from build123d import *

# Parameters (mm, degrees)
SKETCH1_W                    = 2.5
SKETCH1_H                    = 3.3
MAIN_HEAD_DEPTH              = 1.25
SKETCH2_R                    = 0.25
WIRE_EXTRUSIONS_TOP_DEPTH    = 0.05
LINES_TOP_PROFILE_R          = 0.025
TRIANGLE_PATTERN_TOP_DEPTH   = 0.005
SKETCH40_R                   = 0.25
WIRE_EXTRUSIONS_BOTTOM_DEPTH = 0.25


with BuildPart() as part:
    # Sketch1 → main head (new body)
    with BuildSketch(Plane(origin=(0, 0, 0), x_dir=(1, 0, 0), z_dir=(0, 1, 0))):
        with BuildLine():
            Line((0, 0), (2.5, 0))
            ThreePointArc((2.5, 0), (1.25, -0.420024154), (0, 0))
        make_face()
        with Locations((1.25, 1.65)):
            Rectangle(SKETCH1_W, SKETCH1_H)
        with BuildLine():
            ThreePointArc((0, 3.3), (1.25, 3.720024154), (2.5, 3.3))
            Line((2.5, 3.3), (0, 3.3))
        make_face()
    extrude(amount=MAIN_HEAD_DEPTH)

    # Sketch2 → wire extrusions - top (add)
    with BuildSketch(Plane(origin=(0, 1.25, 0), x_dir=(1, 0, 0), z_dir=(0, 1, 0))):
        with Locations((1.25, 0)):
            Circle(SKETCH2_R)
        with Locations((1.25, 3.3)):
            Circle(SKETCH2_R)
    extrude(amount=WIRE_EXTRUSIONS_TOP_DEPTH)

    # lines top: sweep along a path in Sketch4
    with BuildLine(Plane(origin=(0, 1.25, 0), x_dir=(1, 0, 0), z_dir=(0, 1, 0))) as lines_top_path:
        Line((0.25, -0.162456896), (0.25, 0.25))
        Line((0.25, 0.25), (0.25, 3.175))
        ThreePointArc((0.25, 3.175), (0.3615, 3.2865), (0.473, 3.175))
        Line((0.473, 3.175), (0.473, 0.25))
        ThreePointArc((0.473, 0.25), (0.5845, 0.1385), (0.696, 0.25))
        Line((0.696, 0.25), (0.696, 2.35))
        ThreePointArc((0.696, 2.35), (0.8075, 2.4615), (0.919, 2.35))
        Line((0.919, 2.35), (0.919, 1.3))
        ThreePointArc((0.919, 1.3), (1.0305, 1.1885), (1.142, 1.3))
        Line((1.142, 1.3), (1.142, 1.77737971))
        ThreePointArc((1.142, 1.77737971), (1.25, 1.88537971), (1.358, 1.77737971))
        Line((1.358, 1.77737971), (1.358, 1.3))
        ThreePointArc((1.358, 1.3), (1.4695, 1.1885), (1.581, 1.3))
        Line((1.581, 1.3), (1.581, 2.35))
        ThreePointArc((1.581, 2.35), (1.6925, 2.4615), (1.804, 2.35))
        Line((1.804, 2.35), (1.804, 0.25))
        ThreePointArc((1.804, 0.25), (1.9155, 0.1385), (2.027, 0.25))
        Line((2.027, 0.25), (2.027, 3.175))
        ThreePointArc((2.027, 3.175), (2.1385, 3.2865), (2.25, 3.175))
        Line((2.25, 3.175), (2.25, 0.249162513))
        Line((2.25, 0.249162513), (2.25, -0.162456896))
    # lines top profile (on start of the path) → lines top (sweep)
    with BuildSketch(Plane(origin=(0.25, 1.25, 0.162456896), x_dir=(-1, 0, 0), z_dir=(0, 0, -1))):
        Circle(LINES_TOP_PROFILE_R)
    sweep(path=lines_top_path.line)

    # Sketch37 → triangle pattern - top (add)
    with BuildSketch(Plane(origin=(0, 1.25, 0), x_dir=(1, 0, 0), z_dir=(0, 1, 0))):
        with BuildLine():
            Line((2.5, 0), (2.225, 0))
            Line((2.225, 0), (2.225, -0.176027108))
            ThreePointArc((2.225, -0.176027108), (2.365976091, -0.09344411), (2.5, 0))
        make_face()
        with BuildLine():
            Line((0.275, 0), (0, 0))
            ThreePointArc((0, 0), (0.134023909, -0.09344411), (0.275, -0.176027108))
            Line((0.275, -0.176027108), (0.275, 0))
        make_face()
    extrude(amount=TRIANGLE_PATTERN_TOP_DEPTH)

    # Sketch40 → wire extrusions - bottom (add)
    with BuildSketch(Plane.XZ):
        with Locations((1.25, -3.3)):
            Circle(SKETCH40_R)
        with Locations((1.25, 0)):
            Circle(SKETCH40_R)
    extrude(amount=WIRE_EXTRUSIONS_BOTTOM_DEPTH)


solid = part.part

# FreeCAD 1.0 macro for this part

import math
import FreeCAD as App
import Part
import Sketcher

V = App.Vector
Q = App.Units.Quantity

doc = App.newDocument("Part")
params = doc.addObject("Spreadsheet::Sheet", "Params")
for row, (alias, value) in enumerate([
    ("sketch1_height", "3.3 mm"),
    ("pad1_length", "1.25 mm"),
    ("sketch2_diameter", "0.5 mm"),
    ("pad2_length", "0.05 mm"),
    ("sketch3_diameter", "0.05 mm"),
    ("sketch4_height", "2.1 mm"),
    ("sketch4_height2", "1.05 mm"),
    ("pad3_length", "0.005 mm"),
    ("sketch6_diameter", "0.5 mm"),
    ("pad4_length", "0.25 mm"),
], start=1):
    params.set(f"A{row}", alias)
    params.set(f"B{row}", "=" + value)
    params.setAlias(f"B{row}", alias)

body = doc.addObject("PartDesign::Body", "Body")

# Sketch on XZ plane
sketch1 = body.newObject("Sketcher::SketchObject", "Sketch")
sketch1.AttachmentSupport = (doc.getObject("XZ_Plane"), [""])
sketch1.MapMode = "FlatFace"
sketch1.addGeometry([
    Part.ArcOfCircle(Part.Circle(V(1.2, -1.7, 0), V(0, 0, 1), 2.1), math.radians(53), math.radians(127)),
    Part.LineSegment(V(2.5, 0, 0), V(2.5, -3.3, 0)),
    Part.ArcOfCircle(Part.Circle(V(1.2, -1.6, 0), V(0, 0, 1), 2.1), math.radians(-127), math.radians(-53)),
    Part.LineSegment(V(0, -3.3, 0), V(0, 0, 0)),
], False)
sketch1.addConstraint([
    Sketcher.Constraint("Coincident", 0, 1, 1, 1),
    Sketcher.Constraint("Coincident", 1, 2, 2, 2),
    Sketcher.Constraint("Coincident", 2, 1, 3, 1),
    Sketcher.Constraint("Coincident", 3, 2, 0, 2),
    Sketcher.Constraint("Vertical", 1),
    Sketcher.Constraint("Vertical", 3),
    Sketcher.Constraint("Coincident", 3, 2, -1, 1),
    Sketcher.Constraint("Coincident", 2, 3, 0, 3),
    Sketcher.Constraint("Equal", 0, 2),
    Sketcher.Constraint("PointOnObject", 0, 1, -1),
    Sketcher.Constraint("DistanceY", 1, 2, 1, 1, Q("3.3 mm")),
    Sketcher.Constraint("DistanceX", -1, 1, 0, 1, Q("2.5 mm")),
])
sketch1.setExpression("Constraints[10]", "Params.sketch1_height")
pad1 = body.newObject("PartDesign::Pad", "Pad")
pad1.Profile = sketch1
pad1.setExpression("Length", "Params.pad1_length")
pad1.Reversed = True

# Sketch on XZ plane
sketch2 = body.newObject("Sketcher::SketchObject", "Sketch001")
sketch2.AttachmentSupport = (doc.getObject("XZ_Plane"), [""])
sketch2.MapMode = "FlatFace"
sketch2.AttachmentOffset = App.Placement(V(0, 0, -1.25), App.Rotation())
sketch2.addGeometry([
    Part.Circle(V(1.25, 0, 0), V(0, 0, 1), 0.25),
    Part.Circle(V(1.25, -3.3, 0), V(0, 0, 1), 0.25),
], False)
sketch2.addConstraint([
    Sketcher.Constraint("Equal", 0, 1),
    Sketcher.Constraint("PointOnObject", 0, 3, -1),
    Sketcher.Constraint("Vertical", 0, 3, 1, 3),
    Sketcher.Constraint("Diameter", 0, Q("0.5 mm")),
    Sketcher.Constraint("DistanceY", 1, 3, -1, 1, Q("3.3 mm")),
    Sketcher.Constraint("DistanceX", -1, 1, 0, 3, Q("1.25 mm")),
])
sketch2.setExpression("Constraints[3]", "Params.sketch2_diameter")
pad2 = body.newObject("PartDesign::Pad", "Pad001")
pad2.Profile = sketch2
pad2.setExpression("Length", "Params.pad2_length")
pad2.Reversed = True

# Sketch on XY plane
sketch3 = body.newObject("Sketcher::SketchObject", "Sketch002")
sketch3.AttachmentSupport = (doc.getObject("XY_Plane"), [""])
sketch3.MapMode = "FlatFace"
sketch3.AttachmentOffset = App.Placement(V(0, 0, 0.162457), App.Rotation())
sketch3.addGeometry(Part.Circle(V(0.25, 1.25, 0), V(0, 0, 1), 0.025), False)
sketch3.addConstraint([
    Sketcher.Constraint("Diameter", 0, Q("0.05 mm")),
    Sketcher.Constraint("DistanceX", -1, 1, 0, 3, Q("0.25 mm")),
    Sketcher.Constraint("DistanceY", -1, 1, 0, 3, Q("1.25 mm")),
])
sketch3.setExpression("Constraints[0]", "Params.sketch3_diameter")

# Sketch on XZ plane
sketch4 = body.newObject("Sketcher::SketchObject", "Sketch003")
sketch4.AttachmentSupport = (doc.getObject("XZ_Plane"), [""])
sketch4.MapMode = "FlatFace"
sketch4.AttachmentOffset = App.Placement(V(0, 0, -1.25), App.Rotation())
sketch4.addGeometry([
    Part.LineSegment(V(0.25, 0.16, 0), V(0.25, -3.17, 0)),  # 0
    Part.ArcOfCircle(Part.Circle(V(0.36, -3.17, 0), V(0, 0, 1), 0.11), math.radians(180), math.radians(360)),  # 1
    Part.LineSegment(V(0.47, -3.17, 0), V(0.47, -0.25, 0)),  # 2
    Part.ArcOfCircle(Part.Circle(V(0.58, -0.25, 0), V(0, 0, 1), 0.11), math.radians(0), math.radians(180)),  # 3
    Part.LineSegment(V(0.7, -0.25, 0), V(0.7, -2.35, 0)),  # 4
    Part.ArcOfCircle(Part.Circle(V(0.81, -2.35, 0), V(0, 0, 1), 0.11), math.radians(180), math.radians(360)),  # 5
    Part.LineSegment(V(0.92, -2.35, 0), V(0.92, -1.3, 0)),  # 6
    Part.ArcOfCircle(Part.Circle(V(1.03, -1.3, 0), V(0, 0, 1), 0.11), math.radians(0), math.radians(180)),  # 7
    Part.LineSegment(V(1.14, -1.3, 0), V(1.14, -1.78, 0)),  # 8
    Part.ArcOfCircle(Part.Circle(V(1.25, -1.78, 0), V(0, 0, 1), 0.11), math.radians(180), math.radians(360)),  # 9
    Part.LineSegment(V(1.36, -1.78, 0), V(1.36, -1.3, 0)),  # 10
    Part.ArcOfCircle(Part.Circle(V(1.47, -1.3, 0), V(0, 0, 1), 0.11), math.radians(0), math.radians(180)),  # 11
    Part.LineSegment(V(1.58, -1.3, 0), V(1.58, -2.35, 0)),  # 12
    Part.ArcOfCircle(Part.Circle(V(1.69, -2.35, 0), V(0, 0, 1), 0.11), math.radians(180), math.radians(360)),  # 13
    Part.LineSegment(V(1.8, -2.35, 0), V(1.8, -0.25, 0)),  # 14
    Part.ArcOfCircle(Part.Circle(V(1.92, -0.25, 0), V(0, 0, 1), 0.11), math.radians(0), math.radians(180)),  # 15
    Part.LineSegment(V(2.03, -0.25, 0), V(2.03, -3.17, 0)),  # 16
    Part.ArcOfCircle(Part.Circle(V(2.14, -3.17, 0), V(0, 0, 1), 0.11), math.radians(180), math.radians(360)),  # 17
    Part.LineSegment(V(2.25, -3.17, 0), V(2.25, 0.16, 0)),  # 18
], False)
sketch4.addConstraint([
    Sketcher.Constraint("Tangent", 0, 2, 1, 1),
    Sketcher.Constraint("Tangent", 1, 2, 2, 1),
    Sketcher.Constraint("Tangent", 2, 2, 3, 2),
    Sketcher.Constraint("Tangent", 3, 1, 4, 1),
    Sketcher.Constraint("Tangent", 4, 2, 5, 1),
    Sketcher.Constraint("Tangent", 5, 2, 6, 1),
    Sketcher.Constraint("Tangent", 6, 2, 7, 2),
    Sketcher.Constraint("Tangent", 7, 1, 8, 1),
    Sketcher.Constraint("Tangent", 8, 2, 9, 1),
    Sketcher.Constraint("Tangent", 9, 2, 10, 1),
    Sketcher.Constraint("Tangent", 10, 2, 11, 2),
    Sketcher.Constraint("Tangent", 11, 1, 12, 1),
    Sketcher.Constraint("Tangent", 12, 2, 13, 1),
    Sketcher.Constraint("Tangent", 13, 2, 14, 1),
    Sketcher.Constraint("Tangent", 14, 2, 15, 2),
    Sketcher.Constraint("Tangent", 15, 1, 16, 1),
    Sketcher.Constraint("Tangent", 16, 2, 17, 1),
    Sketcher.Constraint("Tangent", 17, 2, 18, 1),
    Sketcher.Constraint("Vertical", 0),
    Sketcher.Constraint("Vertical", 2),
    Sketcher.Constraint("Vertical", 4),
    Sketcher.Constraint("Vertical", 6),
    Sketcher.Constraint("Vertical", 8),
    Sketcher.Constraint("Vertical", 10),
    Sketcher.Constraint("Vertical", 12),
    Sketcher.Constraint("Vertical", 14),
    Sketcher.Constraint("Vertical", 16),
    Sketcher.Constraint("Vertical", 18),
    Sketcher.Constraint("Equal", 1, 3),
    Sketcher.Constraint("Equal", 3, 5),
    Sketcher.Constraint("Equal", 5, 7),
    Sketcher.Constraint("Equal", 7, 11),
    Sketcher.Constraint("Equal", 11, 13),
    Sketcher.Constraint("Equal", 13, 15),
    Sketcher.Constraint("Equal", 15, 17),
    Sketcher.Constraint("Horizontal", 7, 3, 11, 3),
    Sketcher.Constraint("Horizontal", 5, 3, 13, 3),
    Sketcher.Constraint("Horizontal", 3, 3, 15, 3),
    Sketcher.Constraint("Horizontal", 1, 3, 17, 3),
    Sketcher.Constraint("Horizontal", 0, 1, 18, 2),
    Sketcher.Constraint("DistanceY", 4, 2, 4, 1, Q("2.1 mm")),
    Sketcher.Constraint("Radius", 9, Q("0.108 mm")),
    Sketcher.Constraint("DistanceX", 0, 1, 9, 3, Q("1 mm")),
    Sketcher.Constraint("DistanceY", 6, 1, 6, 2, Q("1.05 mm")),
    Sketcher.Constraint("DistanceY", 7, 3, -1, 1, Q("1.3 mm")),
    Sketcher.Constraint("DistanceY", 2, 1, 2, 2, Q("2.925 mm")),
    Sketcher.Constraint("DistanceX", -1, 1, 9, 3, Q("1.25 mm")),
    Sketcher.Constraint("DistanceY", 8, 2, 8, 1, Q("0.47738 mm")),
    Sketcher.Constraint("DistanceY", 0, 2, 0, 1, Q("3.337457 mm")),
])
sketch4.setExpression("Constraints[40]", "Params.sketch4_height")
sketch4.setExpression("Constraints[43]", "Params.sketch4_height2")
doc.recompute()

additivepipe = body.newObject("PartDesign::AdditivePipe", "AdditivePipe")
additivepipe.Profile = sketch3
additivepipe.Spine = (sketch4, ["Edge1", "Edge2", "Edge3", "Edge4", "Edge5", "Edge6", "Edge7", "Edge8", "Edge9", "Edge10", "Edge11", "Edge12", "Edge13", "Edge14", "Edge15", "Edge16", "Edge17", "Edge18", "Edge19"])

# Sketch on XZ plane
sketch5 = body.newObject("Sketcher::SketchObject", "Sketch004")
sketch5.AttachmentSupport = (doc.getObject("XZ_Plane"), [""])
sketch5.MapMode = "FlatFace"
sketch5.AttachmentOffset = App.Placement(V(0, 0, -1.25), App.Rotation())
sketch5.addGeometry([
    Part.LineSegment(V(2.5, 0, 0), V(2.23, 0, 0)),  # 0
    Part.LineSegment(V(2.23, 0, 0), V(2.23, 0.18, 0)),  # 1
    Part.ArcOfCircle(Part.Circle(V(1.25, -1.65, 0), V(0, 0, 1), 2.07), math.radians(52.85), math.radians(61.9)),  # 2
    Part.LineSegment(V(0.28, 0, 0), V(0, 0, 0)),  # 3
    Part.ArcOfCircle(Part.Circle(V(1.25, -1.65, 0), V(0, 0, 1), 2.07), math.radians(118.1), math.radians(127.15)),  # 4
    Part.LineSegment(V(0.28, 0.18, 0), V(0.28, 0, 0)),  # 5
], False)
sketch5.addConstraint([
    Sketcher.Constraint("Coincident", 0, 2, 1, 1),
    Sketcher.Constraint("Coincident", 1, 2, 2, 2),
    Sketcher.Constraint("Coincident", 2, 1, 0, 1),
    Sketcher.Constraint("Coincident", 3, 2, 4, 2),
    Sketcher.Constraint("Coincident", 4, 1, 5, 1),
    Sketcher.Constraint("Coincident", 5, 2, 3, 1),
    Sketcher.Constraint("Horizontal", 0),
    Sketcher.Constraint("Vertical", 1),
    Sketcher.Constraint("Horizontal", 3),
    Sketcher.Constraint("Vertical", 5),
    Sketcher.Constraint("Coincident", 3, 2, -1, 1),
    Sketcher.Constraint("Coincident", 4, 3, 2, 3),
    Sketcher.Constraint("Equal", 2, 4),
    Sketcher.Constraint("PointOnObject", 0, 2, -1),
    Sketcher.Constraint("Horizontal", 1, 2, 4, 1),
    Sketcher.Constraint("DistanceX", -1, 1, 2, 1, Q("2.5 mm")),
    Sketcher.Constraint("DistanceX", 0, 2, 0, 1, Q("0.275 mm")),
    Sketcher.Constraint("DistanceY", 2, 3, -1, 1, Q("1.65 mm")),
])
pad3 = body.newObject("PartDesign::Pad", "Pad002")
pad3.Profile = sketch5
pad3.setExpression("Length", "Params.pad3_length")
pad3.Reversed = True

# Sketch on XZ plane
sketch6 = body.newObject("Sketcher::SketchObject", "Sketch005")
sketch6.AttachmentSupport = (doc.getObject("XZ_Plane"), [""])
sketch6.MapMode = "FlatFace"
sketch6.addGeometry([
    Part.Circle(V(1.25, -3.3, 0), V(0, 0, 1), 0.25),
    Part.Circle(V(1.25, 0, 0), V(0, 0, 1), 0.25),
], False)
sketch6.addConstraint([
    Sketcher.Constraint("Equal", 0, 1),
    Sketcher.Constraint("PointOnObject", 1, 3, -1),
    Sketcher.Constraint("Vertical", 0, 3, 1, 3),
    Sketcher.Constraint("Diameter", 0, Q("0.5 mm")),
    Sketcher.Constraint("DistanceY", 0, 3, -1, 1, Q("3.3 mm")),
    Sketcher.Constraint("DistanceX", -1, 1, 0, 3, Q("1.25 mm")),
])
sketch6.setExpression("Constraints[3]", "Params.sketch6_diameter")
pad4 = body.newObject("PartDesign::Pad", "Pad003")
pad4.Profile = sketch6
pad4.setExpression("Length", "Params.pad4_length")

doc.recompute()
